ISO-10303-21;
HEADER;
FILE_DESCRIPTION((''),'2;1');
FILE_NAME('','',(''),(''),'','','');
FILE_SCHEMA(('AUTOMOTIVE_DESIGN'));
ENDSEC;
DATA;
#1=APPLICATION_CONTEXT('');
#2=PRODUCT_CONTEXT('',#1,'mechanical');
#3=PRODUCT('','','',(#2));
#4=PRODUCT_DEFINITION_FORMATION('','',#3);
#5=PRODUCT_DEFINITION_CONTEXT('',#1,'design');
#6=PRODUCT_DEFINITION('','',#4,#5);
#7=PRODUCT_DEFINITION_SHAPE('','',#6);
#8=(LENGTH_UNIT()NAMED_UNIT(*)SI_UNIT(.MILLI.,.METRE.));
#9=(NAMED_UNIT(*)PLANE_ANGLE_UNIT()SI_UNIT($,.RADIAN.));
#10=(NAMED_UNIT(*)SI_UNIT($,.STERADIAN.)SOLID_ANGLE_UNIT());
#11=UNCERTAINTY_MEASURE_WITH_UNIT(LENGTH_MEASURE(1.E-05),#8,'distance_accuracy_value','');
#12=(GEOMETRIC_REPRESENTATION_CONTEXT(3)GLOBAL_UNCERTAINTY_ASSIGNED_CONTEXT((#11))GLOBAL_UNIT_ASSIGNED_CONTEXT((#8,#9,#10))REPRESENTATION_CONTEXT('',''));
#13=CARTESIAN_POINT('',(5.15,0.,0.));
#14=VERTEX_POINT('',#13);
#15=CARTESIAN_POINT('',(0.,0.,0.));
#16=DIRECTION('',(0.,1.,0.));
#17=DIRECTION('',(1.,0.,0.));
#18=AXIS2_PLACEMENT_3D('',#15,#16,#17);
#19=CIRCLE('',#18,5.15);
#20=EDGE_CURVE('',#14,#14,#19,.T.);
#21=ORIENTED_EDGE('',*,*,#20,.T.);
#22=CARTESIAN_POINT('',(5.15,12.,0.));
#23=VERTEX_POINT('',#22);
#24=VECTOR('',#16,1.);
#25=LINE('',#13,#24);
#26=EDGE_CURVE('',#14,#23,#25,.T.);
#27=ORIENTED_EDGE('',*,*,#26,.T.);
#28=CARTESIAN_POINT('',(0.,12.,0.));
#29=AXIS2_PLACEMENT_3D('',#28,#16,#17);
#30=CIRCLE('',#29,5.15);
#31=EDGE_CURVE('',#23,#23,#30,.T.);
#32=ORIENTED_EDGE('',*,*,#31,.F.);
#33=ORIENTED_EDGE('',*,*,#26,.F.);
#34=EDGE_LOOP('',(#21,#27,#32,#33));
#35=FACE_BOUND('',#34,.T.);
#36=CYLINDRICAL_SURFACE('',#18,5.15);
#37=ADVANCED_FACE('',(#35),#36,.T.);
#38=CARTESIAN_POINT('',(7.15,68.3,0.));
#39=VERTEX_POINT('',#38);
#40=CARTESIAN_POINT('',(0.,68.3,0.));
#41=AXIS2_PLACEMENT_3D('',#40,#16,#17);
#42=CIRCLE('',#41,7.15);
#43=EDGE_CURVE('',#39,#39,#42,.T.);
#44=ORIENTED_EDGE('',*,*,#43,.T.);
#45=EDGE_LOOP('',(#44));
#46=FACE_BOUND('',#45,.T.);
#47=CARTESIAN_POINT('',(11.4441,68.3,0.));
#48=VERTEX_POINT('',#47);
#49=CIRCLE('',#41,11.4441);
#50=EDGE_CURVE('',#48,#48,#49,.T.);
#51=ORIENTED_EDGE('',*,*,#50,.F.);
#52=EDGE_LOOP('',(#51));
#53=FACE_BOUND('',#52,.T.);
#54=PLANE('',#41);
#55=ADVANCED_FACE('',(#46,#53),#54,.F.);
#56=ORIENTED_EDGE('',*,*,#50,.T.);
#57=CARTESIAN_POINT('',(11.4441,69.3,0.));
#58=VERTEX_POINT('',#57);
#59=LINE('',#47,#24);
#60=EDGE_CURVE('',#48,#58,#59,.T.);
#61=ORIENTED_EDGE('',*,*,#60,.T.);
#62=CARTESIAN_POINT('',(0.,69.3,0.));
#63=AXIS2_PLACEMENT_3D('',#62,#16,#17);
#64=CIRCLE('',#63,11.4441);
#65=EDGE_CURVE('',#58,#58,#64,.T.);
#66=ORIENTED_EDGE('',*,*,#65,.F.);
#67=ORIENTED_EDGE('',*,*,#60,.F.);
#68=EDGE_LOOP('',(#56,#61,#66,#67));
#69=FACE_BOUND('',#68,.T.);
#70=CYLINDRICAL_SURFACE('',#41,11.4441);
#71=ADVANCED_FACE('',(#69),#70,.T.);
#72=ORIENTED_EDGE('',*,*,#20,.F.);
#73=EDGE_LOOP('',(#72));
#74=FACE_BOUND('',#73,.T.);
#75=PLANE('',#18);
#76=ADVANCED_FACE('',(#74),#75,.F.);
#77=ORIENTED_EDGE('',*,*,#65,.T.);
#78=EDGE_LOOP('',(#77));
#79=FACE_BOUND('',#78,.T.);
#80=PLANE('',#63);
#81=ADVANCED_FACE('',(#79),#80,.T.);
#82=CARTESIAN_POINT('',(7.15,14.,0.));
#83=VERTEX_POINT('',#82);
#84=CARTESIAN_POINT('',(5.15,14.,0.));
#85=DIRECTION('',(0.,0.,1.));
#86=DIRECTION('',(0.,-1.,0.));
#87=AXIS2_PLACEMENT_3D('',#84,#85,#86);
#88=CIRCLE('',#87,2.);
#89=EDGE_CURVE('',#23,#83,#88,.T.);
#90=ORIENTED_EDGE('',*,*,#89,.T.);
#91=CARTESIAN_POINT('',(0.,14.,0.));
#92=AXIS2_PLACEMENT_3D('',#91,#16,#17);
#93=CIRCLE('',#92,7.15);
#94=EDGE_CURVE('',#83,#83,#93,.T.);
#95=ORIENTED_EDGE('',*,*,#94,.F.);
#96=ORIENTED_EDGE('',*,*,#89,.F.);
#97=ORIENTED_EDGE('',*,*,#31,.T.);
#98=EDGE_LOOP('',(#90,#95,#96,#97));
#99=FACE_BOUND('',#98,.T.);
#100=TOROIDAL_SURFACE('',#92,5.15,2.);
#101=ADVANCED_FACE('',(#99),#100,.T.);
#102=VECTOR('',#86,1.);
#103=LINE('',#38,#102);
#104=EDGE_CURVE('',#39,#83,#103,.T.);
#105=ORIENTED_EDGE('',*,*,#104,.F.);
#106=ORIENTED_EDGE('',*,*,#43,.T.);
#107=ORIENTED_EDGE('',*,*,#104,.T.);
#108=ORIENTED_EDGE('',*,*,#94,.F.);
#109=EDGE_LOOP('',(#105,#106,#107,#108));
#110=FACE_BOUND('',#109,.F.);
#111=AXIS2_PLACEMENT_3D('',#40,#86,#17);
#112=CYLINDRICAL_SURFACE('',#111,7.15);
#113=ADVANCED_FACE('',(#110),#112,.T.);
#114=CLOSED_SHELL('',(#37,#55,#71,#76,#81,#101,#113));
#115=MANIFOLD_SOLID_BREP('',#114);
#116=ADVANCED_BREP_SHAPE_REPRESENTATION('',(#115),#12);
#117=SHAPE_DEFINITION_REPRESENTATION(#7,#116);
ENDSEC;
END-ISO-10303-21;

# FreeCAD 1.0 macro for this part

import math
import FreeCAD as App
import Part
import Sketcher
from FreeCAD import Vector

doc = App.newDocument("Part")
body = doc.addObject("PartDesign::Body", "Body")

# Sketch on XY plane
sketch1 = body.newObject("Sketcher::SketchObject", "Sketch")
sketch1.AttachmentSupport = (doc.getObject("XY_Plane"), [""])
sketch1.MapMode = "FlatFace"
sketch1.addGeometry(Part.LineSegment(Vector(0, 0, 0), Vector(5.2, 0, 0)), False)
sketch1.addGeometry(Part.LineSegment(Vector(5.2, 0, 0), Vector(5.2, 12, 0)), False)
sketch1.addGeometry(Part.ArcOfCircle(Part.Circle(Vector(5.2, 14, 0), Vector(0, 0, 1), 2), math.radians(-90), math.radians(0)), False)
sketch1.addGeometry(Part.LineSegment(Vector(7.2, 14, 0), Vector(7.2, 68.3, 0)), False)
sketch1.addGeometry(Part.LineSegment(Vector(7.2, 68.3, 0), Vector(11.4, 68.3, 0)), False)
sketch1.addGeometry(Part.LineSegment(Vector(11.4, 68.3, 0), Vector(11.4, 69.3, 0)), False)
sketch1.addGeometry(Part.LineSegment(Vector(11.4, 69.3, 0), Vector(0, 69.3, 0)), False)
sketch1.addGeometry(Part.LineSegment(Vector(0, 69.3, 0), Vector(0, 0, 0)), False)
sketch1.addConstraint(Sketcher.Constraint("Coincident", 0, 2, 1, 1))
sketch1.addConstraint(Sketcher.Constraint("Coincident", 1, 2, 2, 1))
sketch1.addConstraint(Sketcher.Constraint("Tangent", 2, 2, 3, 1))
sketch1.addConstraint(Sketcher.Constraint("Coincident", 3, 2, 4, 1))
sketch1.addConstraint(Sketcher.Constraint("Coincident", 4, 2, 5, 1))
sketch1.addConstraint(Sketcher.Constraint("Coincident", 5, 2, 6, 1))
sketch1.addConstraint(Sketcher.Constraint("Coincident", 6, 2, 7, 1))
sketch1.addConstraint(Sketcher.Constraint("Coincident", 7, 2, 0, 1))
sketch1.addConstraint(Sketcher.Constraint("Horizontal", 0))
sketch1.addConstraint(Sketcher.Constraint("Vertical", 1))
sketch1.addConstraint(Sketcher.Constraint("Vertical", 3))
sketch1.addConstraint(Sketcher.Constraint("Horizontal", 4))
sketch1.addConstraint(Sketcher.Constraint("Vertical", 5))
sketch1.addConstraint(Sketcher.Constraint("Horizontal", 6))
sketch1.addConstraint(Sketcher.Constraint("Vertical", 7))
sketch1.addConstraint(Sketcher.Constraint("Coincident", 7, 2, -1, 1))
sketch1.addConstraint(Sketcher.Constraint("Vertical", 2, 3, 0, 2))
sketch1.addConstraint(Sketcher.Constraint("Radius", 2, 2.0))
sketch1.addConstraint(Sketcher.Constraint("DistanceY", 1, 1, 1, 2, 12.0))
sketch1.addConstraint(Sketcher.Constraint("DistanceY", 5, 1, 5, 2, 1.0))
sketch1.addConstraint(Sketcher.Constraint("DistanceX", 0, 1, 0, 2, 5.15))
sketch1.addConstraint(Sketcher.Constraint("DistanceY", -1, 1, 3, 2, 68.3))
sketch1.addConstraint(Sketcher.Constraint("DistanceX", 4, 1, 4, 2, 4.294))
revolution = body.newObject("PartDesign::Revolution", "Revolution")
revolution.Profile = sketch1
revolution.ReferenceAxis = (sketch1, ["V_Axis"])
revolution.Angle = 360

doc.recompute()
